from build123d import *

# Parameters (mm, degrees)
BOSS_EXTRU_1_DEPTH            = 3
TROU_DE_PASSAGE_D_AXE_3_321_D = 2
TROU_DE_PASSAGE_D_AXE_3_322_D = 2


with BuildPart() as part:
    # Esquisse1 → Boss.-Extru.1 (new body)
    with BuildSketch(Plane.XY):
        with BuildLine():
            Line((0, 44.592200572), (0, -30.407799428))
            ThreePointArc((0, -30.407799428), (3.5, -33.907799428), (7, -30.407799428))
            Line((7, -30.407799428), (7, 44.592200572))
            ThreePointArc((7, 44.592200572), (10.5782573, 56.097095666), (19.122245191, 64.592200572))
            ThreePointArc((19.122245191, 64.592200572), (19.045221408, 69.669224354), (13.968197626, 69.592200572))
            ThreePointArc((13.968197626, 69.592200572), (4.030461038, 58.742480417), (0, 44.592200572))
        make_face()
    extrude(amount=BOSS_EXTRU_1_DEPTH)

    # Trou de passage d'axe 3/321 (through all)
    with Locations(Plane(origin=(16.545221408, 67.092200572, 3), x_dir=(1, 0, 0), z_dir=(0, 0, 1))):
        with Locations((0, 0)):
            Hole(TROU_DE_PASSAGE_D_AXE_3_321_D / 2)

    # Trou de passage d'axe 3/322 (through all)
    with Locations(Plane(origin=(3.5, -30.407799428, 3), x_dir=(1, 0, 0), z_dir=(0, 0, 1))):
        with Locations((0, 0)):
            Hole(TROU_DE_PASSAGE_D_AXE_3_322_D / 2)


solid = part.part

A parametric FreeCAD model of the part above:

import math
import FreeCAD as App
import Part
import Sketcher
Q = App.Units.Quantity

doc = App.newDocument("Part")
body = doc.addObject("PartDesign::Body", "Body")

# Sketch on XY plane
sketch1 = body.newObject("Sketcher::SketchObject", "Sketch")
sketch1.AttachmentSupport = (doc.getObject("XY_Plane"), [""])
sketch1.MapMode = "FlatFace"
sketch1.addGeometry([
    Part.LineSegment(App.Vector(0, 44.592201, 0), App.Vector(0, -30.407799, 0)),  # 0
    Part.ArcOfCircle(Part.Circle(App.Vector(3.5, -30.407799, 0), App.Vector(0, 0, 1), 3.5), math.radians(180), math.radians(360)),  # 1
    Part.LineSegment(App.Vector(7, -30.407799, 0), App.Vector(7, 44.592201, 0)),  # 2
    Part.ArcOfCircle(Part.Circle(App.Vector(31.957714, 43.138745, 0), App.Vector(0, 0, 1), 25), math.radians(120.89182), math.radians(176.667046)),  # 3
    Part.ArcOfCircle(Part.Circle(App.Vector(16.545221, 67.092201, 0), App.Vector(0, 0, 1), 3.590411), math.radians(-44.13083), math.radians(135.86917)),  # 4
    Part.ArcOfCircle(Part.Circle(App.Vector(31.957714, 43.138745, 0), App.Vector(0, 0, 1), 31.990749), math.radians(124.217429), math.radians(177.395949)),  # 5
], False)
sketch1.addConstraint([
    Sketcher.Constraint("Tangent", 0, 2, 1, 1),
    Sketcher.Constraint("Tangent", 1, 2, 2, 1),
    Sketcher.Constraint("Coincident", 2, 2, 3, 2),
    Sketcher.Constraint("Coincident", 3, 1, 4, 1),
    Sketcher.Constraint("Coincident", 4, 2, 5, 1),
    Sketcher.Constraint("Coincident", 5, 2, 0, 1),
    Sketcher.Constraint("Vertical", 0),
    Sketcher.Constraint("Vertical", 2),
    Sketcher.Constraint("Coincident", 5, 3, 3, 3),
    Sketcher.Constraint("PointOnObject", 0, 2, -2),
    Sketcher.Constraint("Horizontal", 2, 2, 5, 2),
    Sketcher.Constraint("Radius", 3, Q("25 mm")),
    Sketcher.Constraint("Radius", 1, Q("3.5 mm")),
    Sketcher.Constraint("DistanceY", 0, 2, 0, 1, Q("75 mm")),
    Sketcher.Constraint("DistanceY", 2, 2, 3, 1, Q("20 mm")),
    Sketcher.Constraint("DistanceY", 3, 1, 4, 2, Q("5 mm")),
    Sketcher.Constraint("DistanceY", 1, 3, 4, 3, Q("97.5 mm")),
    Sketcher.Constraint("Radius", 4, Q("3.590411 mm")),
    Sketcher.Constraint("DistanceY", 1, 3, -1, 1, Q("30.407799 mm")),
])
pad1 = body.newObject("PartDesign::Pad", "Pad")
pad1.Profile = sketch1
pad1.Length = 3

# Sketch on XY plane
sketch2 = body.newObject("Sketcher::SketchObject", "Sketch001")
sketch2.AttachmentSupport = (doc.getObject("XY_Plane"), [""])
sketch2.MapMode = "FlatFace"
sketch2.AttachmentOffset = App.Placement(App.Vector(0, 0, 3), App.Rotation())
sketch2.addGeometry(Part.Circle(App.Vector(16.545221, 67.092201, 0), App.Vector(0, 0, 1), 1), False)
sketch2.addConstraint([
    Sketcher.Constraint("Diameter", 0, Q("2 mm")),
    Sketcher.Constraint("DistanceY", -1, 1, 0, 3, Q("67.092201 mm")),
    Sketcher.Constraint("DistanceX", -1, 1, 0, 3, Q("16.545221 mm")),
])
doc.recompute()
hole = body.newObject("PartDesign::Hole", "Hole")
hole.Profile = sketch2
hole.ThreadType = "None"
hole.Diameter = 2
hole.DepthType = "ThroughAll"

# Sketch on XY plane
sketch3 = body.newObject("Sketcher::SketchObject", "Sketch002")
sketch3.AttachmentSupport = (doc.getObject("XY_Plane"), [""])
sketch3.MapMode = "FlatFace"
sketch3.AttachmentOffset = App.Placement(App.Vector(0, 0, 3), App.Rotation())
sketch3.addGeometry(Part.Circle(App.Vector(3.5, -30.407799, 0), App.Vector(0, 0, 1), 1), False)
sketch3.addConstraint([
    Sketcher.Constraint("Diameter", 0, Q("2 mm")),
    Sketcher.Constraint("DistanceX", -1, 1, 0, 3, Q("3.5 mm")),
    Sketcher.Constraint("DistanceY", 0, 3, -1, 1, Q("30.407799 mm")),
])
doc.recompute()
hole2 = body.newObject("PartDesign::Hole", "Hole001")
hole2.Profile = sketch3
hole2.ThreadType = "None"
hole2.Diameter = 2
hole2.DepthType = "ThroughAll"

doc.recompute()
